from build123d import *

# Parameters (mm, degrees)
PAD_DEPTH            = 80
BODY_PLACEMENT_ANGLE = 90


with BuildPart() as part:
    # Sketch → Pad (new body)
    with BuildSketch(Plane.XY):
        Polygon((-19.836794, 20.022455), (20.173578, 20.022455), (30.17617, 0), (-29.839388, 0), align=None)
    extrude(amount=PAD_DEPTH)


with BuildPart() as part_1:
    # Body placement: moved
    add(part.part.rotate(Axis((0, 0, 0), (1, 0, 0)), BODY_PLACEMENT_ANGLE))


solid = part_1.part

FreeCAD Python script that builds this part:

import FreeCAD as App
import Part
import Sketcher

V = App.Vector
Q = App.Units.Quantity

doc = App.newDocument("Part")
body = doc.addObject("PartDesign::Body", "Body")

# Sketch on XY plane
sketch1 = doc.addObject("Sketcher::SketchObject", "Sketch")
body.addObject(sketch1)
sketch1.AttachmentSupport = (doc.XY_Plane, [""])
sketch1.MapMode = "FlatFace"
sketch1.addGeometry([
    Part.LineSegment(V(20, 20, 0), V(-20, 20, 0)),
    Part.LineSegment(V(-20, 20, 0), V(-30, 0, 0)),
    Part.LineSegment(V(-30, 0, 0), V(30, 0, 0)),
    Part.LineSegment(V(30, 0, 0), V(20, 20, 0)),
], False)
sketch1.addConstraint([
    Sketcher.Constraint("Coincident", 0, 2, 1, 1),
    Sketcher.Constraint("Coincident", 1, 2, 2, 1),
    Sketcher.Constraint("Coincident", 2, 2, 3, 1),
    Sketcher.Constraint("Coincident", 3, 2, 0, 1),
    Sketcher.Constraint("Horizontal", 0),
    Sketcher.Constraint("Horizontal", 2),
    Sketcher.Constraint("PointOnObject", 1, 2, -1),
    Sketcher.Constraint("Equal", 1, 3),
    Sketcher.Constraint("DistanceX", 0, 2, 0, 1, Q("40.010372 mm")),
    Sketcher.Constraint("DistanceX", 2, 1, 2, 2, Q("60.015558 mm")),
    Sketcher.Constraint("DistanceX", -1, 1, 2, 2, Q("30.17617 mm")),
    Sketcher.Constraint("Distance", 1, Q("22.381926 mm")),
])
pad1 = doc.addObject("PartDesign::Pad", "Pad")
body.addObject(pad1)
pad1.Profile = sketch1
pad1.Length = 80
body2 = doc.addObject("PartDesign::Body", "Body001")
doc.recompute()

body.Placement = App.Placement(V(0, 0, 0), App.Rotation(V(1, 0, 0), 90))
boolean = doc.addObject("PartDesign::Boolean", "Boolean")
body2.addObject(boolean)
boolean.Type = "Fuse"
boolean.addObjects([body])

doc.recompute()
